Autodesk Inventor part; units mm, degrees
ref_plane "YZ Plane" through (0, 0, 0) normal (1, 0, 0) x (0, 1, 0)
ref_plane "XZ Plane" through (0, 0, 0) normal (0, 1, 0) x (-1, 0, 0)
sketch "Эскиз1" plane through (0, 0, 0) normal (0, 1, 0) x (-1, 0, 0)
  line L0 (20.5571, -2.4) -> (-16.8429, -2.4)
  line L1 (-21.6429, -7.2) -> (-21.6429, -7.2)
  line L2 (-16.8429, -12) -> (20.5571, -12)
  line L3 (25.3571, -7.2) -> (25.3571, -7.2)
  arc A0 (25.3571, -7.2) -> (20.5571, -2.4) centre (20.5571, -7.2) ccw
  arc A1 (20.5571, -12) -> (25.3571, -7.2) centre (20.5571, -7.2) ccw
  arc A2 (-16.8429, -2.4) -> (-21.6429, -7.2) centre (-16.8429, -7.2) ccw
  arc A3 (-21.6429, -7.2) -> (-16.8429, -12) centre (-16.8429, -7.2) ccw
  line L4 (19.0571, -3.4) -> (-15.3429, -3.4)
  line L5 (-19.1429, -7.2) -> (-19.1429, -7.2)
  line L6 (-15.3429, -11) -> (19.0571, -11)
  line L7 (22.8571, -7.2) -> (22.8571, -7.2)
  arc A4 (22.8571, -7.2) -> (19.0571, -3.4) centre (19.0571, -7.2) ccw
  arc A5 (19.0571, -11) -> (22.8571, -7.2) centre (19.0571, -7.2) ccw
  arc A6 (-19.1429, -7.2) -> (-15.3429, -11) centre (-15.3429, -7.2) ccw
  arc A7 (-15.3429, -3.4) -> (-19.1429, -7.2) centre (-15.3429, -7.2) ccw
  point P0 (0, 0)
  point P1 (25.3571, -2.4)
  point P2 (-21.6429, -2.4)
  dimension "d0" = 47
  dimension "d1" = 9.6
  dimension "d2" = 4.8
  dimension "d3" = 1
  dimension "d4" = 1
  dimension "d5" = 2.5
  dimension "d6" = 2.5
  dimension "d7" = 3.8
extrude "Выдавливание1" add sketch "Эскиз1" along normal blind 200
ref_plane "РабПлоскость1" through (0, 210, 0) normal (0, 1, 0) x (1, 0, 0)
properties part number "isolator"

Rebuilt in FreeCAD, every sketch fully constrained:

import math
import FreeCAD as App
import Part
import Sketcher

V = App.Vector

doc = App.newDocument("Part")
params = doc.addObject("Spreadsheet::Sheet", "Params")
for row, (alias, value) in enumerate([
    ("sketch1_radius", "4.8 mm"),
    ("sketch1_radius2", "3.8 mm"),
    ("sketch1_width", "37.4 mm"),
    ("sketch1_width2", "34.4 mm"),
    ("pad1_length", "200 mm"),
], start=1):
    params.set(f"A{row}", alias)
    params.set(f"B{row}", "=" + value)
    params.setAlias(f"B{row}", alias)

body = doc.addObject("PartDesign::Body", "Body")

sketch1 = body.newObject("Sketcher::SketchObject", "Sketch")
sketch1.AttachmentSupport = (doc.getObject("XZ_Plane"), [""])
sketch1.MapMode = "FlatFace"
sketch1.addGeometry([
    Part.ArcOfCircle(Part.Circle(V(-20.6, -7.2, 0), V(0, 0, 1), 4.8), math.radians(90), math.radians(270)),
    Part.LineSegment(V(-20.6, -2.4, 0), V(16.8, -2.4, 0)),
    Part.ArcOfCircle(Part.Circle(V(16.8, -7.2, 0), V(0, 0, 1), 4.8), math.radians(-90), math.radians(90)),
    Part.LineSegment(V(16.8, -12, 0), V(-20.6, -12, 0)),
    Part.LineSegment(V(15.3, -3.4, 0), V(-19.1, -3.4, 0)),
    Part.ArcOfCircle(Part.Circle(V(-19.1, -7.2, 0), V(0, 0, 1), 3.8), math.radians(90), math.radians(270)),
    Part.LineSegment(V(-19.1, -11, 0), V(15.3, -11, 0)),
    Part.ArcOfCircle(Part.Circle(V(15.3, -7.2, 0), V(0, 0, 1), 3.8), math.radians(-90), math.radians(90)),
], False)
sketch1.addConstraint([
    Sketcher.Constraint("Tangent", 0, 1, 1, 1),
    Sketcher.Constraint("Tangent", 1, 2, 2, 2),
    Sketcher.Constraint("Tangent", 2, 1, 3, 1),
    Sketcher.Constraint("Tangent", 3, 2, 0, 2),
    Sketcher.Constraint("Tangent", 4, 2, 5, 1),
    Sketcher.Constraint("Tangent", 5, 2, 6, 1),
    Sketcher.Constraint("Tangent", 6, 2, 7, 1),
    Sketcher.Constraint("Tangent", 7, 2, 4, 1),
    Sketcher.Constraint("Horizontal", 1),
    Sketcher.Constraint("Horizontal", 3),
    Sketcher.Constraint("Horizontal", 4),
    Sketcher.Constraint("Horizontal", 6),
    Sketcher.Constraint("Horizontal", 2, 3, 5, 3),
    Sketcher.Constraint("Radius", 0, 4.8),
    Sketcher.Constraint("Radius", 5, 3.8),
    Sketcher.Constraint("DistanceX", 1, 1, 1, 2, 37.4),
    Sketcher.Constraint("DistanceX", 4, 2, 4, 1, 34.4),
    Sketcher.Constraint("DistanceY", 2, 1, -1, 1, 12.0),
    Sketcher.Constraint("DistanceX", 0, 3, 5, 3, 1.5),
    Sketcher.Constraint("DistanceX", 0, 3, -1, 1, 20.557),
])
sketch1.setExpression("Constraints[13]", "Params.sketch1_radius")
sketch1.setExpression("Constraints[14]", "Params.sketch1_radius2")
sketch1.setExpression("Constraints[15]", "Params.sketch1_width")
sketch1.setExpression("Constraints[16]", "Params.sketch1_width2")
pad1 = body.newObject("PartDesign::Pad", "Pad")
pad1.Profile = sketch1
pad1.setExpression("Length", "Params.pad1_length")
pad1.Reversed = True

doc.recompute()
